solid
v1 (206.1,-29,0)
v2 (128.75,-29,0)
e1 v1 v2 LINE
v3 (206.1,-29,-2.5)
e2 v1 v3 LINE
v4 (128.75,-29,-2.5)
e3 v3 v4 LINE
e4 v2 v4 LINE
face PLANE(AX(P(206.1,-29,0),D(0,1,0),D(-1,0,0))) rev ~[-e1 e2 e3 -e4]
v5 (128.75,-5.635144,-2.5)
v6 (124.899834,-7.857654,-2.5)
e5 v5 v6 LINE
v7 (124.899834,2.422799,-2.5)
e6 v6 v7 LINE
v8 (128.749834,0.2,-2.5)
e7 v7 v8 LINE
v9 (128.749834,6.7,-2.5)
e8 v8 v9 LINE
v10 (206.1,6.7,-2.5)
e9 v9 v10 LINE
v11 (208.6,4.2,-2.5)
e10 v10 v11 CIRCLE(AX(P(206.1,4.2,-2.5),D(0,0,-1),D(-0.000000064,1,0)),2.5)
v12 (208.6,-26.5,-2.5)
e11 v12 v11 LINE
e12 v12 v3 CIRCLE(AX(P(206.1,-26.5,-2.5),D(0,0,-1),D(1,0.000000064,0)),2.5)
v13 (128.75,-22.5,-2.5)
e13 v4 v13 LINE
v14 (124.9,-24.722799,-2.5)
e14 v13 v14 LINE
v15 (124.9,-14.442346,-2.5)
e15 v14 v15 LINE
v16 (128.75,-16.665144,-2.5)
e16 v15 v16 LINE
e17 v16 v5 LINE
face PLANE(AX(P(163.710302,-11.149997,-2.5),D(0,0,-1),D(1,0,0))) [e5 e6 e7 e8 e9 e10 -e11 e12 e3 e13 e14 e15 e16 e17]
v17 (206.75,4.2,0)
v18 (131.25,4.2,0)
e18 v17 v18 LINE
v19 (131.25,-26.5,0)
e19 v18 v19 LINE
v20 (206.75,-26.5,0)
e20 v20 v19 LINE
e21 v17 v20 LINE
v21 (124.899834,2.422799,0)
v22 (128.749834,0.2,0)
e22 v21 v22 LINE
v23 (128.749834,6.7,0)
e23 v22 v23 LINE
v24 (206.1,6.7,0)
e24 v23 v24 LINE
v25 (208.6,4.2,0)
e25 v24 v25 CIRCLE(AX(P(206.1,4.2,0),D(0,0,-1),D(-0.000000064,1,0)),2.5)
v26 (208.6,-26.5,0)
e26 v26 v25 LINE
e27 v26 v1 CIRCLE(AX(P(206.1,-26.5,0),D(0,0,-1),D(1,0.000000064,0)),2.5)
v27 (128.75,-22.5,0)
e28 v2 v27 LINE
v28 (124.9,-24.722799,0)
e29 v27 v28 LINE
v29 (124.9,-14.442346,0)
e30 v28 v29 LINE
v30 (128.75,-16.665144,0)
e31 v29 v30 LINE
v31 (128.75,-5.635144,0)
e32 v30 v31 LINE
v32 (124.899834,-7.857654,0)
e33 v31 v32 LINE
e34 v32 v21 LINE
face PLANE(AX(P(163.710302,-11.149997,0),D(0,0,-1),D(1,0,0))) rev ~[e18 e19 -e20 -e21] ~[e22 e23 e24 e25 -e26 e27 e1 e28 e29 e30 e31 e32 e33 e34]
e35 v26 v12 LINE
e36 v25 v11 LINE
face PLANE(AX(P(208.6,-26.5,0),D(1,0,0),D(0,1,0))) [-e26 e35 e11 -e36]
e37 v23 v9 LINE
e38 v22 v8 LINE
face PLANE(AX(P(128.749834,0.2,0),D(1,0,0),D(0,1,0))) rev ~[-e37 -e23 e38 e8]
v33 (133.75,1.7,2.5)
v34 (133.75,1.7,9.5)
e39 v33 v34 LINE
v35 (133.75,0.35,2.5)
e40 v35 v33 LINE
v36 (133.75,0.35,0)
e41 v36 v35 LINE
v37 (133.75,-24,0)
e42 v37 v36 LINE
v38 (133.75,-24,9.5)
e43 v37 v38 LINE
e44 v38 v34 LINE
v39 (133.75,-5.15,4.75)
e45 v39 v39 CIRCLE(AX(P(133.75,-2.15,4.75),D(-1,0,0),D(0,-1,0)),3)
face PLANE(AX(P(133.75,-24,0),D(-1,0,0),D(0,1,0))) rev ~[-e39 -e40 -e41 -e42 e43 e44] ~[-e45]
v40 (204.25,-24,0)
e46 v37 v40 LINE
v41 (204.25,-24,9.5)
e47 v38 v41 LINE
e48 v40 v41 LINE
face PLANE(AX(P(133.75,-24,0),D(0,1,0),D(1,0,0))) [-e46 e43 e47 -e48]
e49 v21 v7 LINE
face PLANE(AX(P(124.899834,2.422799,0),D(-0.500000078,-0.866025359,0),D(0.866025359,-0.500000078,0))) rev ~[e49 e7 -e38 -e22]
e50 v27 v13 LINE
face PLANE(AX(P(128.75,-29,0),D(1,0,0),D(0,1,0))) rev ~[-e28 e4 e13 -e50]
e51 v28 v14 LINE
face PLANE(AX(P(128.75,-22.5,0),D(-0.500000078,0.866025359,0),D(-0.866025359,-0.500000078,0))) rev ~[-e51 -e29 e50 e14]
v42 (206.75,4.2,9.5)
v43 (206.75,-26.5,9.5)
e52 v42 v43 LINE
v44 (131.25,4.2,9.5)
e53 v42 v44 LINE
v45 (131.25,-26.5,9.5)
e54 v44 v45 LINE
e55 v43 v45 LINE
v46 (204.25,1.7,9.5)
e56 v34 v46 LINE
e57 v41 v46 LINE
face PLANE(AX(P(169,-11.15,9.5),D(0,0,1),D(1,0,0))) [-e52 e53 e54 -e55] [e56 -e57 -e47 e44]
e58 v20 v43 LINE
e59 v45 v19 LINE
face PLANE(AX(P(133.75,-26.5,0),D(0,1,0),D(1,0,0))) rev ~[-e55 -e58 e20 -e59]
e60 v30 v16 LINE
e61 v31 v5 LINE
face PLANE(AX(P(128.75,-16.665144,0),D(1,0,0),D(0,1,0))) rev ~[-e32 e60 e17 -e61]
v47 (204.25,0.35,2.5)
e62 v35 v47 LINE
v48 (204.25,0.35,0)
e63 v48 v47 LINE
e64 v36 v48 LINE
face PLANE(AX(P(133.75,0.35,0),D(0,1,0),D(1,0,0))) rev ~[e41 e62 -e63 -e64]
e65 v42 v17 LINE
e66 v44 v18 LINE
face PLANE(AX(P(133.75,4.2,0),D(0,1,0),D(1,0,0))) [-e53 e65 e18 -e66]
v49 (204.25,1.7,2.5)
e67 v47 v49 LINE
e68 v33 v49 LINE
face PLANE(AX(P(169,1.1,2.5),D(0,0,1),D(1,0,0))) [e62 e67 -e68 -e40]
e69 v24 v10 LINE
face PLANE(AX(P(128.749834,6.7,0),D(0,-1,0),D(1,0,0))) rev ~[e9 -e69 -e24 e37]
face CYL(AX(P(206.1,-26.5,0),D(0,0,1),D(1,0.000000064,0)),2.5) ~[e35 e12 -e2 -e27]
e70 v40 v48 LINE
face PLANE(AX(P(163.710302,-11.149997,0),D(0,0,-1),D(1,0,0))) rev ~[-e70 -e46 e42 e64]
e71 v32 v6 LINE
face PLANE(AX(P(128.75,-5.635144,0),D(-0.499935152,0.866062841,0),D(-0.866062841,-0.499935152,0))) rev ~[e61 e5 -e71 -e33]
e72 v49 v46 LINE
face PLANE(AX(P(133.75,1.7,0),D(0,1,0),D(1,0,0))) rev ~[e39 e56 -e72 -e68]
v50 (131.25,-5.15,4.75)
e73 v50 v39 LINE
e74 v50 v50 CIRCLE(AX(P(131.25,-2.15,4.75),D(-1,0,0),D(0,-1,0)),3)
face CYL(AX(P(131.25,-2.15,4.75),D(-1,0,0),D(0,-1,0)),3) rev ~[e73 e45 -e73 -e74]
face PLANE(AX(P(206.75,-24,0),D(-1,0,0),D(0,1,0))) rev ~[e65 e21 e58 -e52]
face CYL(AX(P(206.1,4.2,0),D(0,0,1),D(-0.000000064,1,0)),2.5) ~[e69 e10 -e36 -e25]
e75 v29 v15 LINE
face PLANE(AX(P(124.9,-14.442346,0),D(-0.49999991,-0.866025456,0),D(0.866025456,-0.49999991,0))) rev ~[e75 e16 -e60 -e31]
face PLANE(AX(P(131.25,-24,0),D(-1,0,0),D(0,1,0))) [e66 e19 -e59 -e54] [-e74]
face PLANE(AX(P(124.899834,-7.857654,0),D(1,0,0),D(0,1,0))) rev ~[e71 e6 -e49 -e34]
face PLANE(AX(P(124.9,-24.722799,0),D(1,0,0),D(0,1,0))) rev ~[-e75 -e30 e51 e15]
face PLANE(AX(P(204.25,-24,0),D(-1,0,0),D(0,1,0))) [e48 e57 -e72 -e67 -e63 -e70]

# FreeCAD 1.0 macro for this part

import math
import FreeCAD as App
import Part
import Sketcher
Q = App.Units.Quantity


def faces_at(feature, points):
    """Names of the faces that lie closest to the given points."""
    faces = feature.Shape.Faces
    near = lambda p: min(range(len(faces)), key=lambda i: faces[i].distToShape(Part.Vertex(*p))[0])
    return sorted({f"Face{near(p) + 1}" for p in points})


def add_polygon(sketch, points):
    """Adds a closed chain of lines whose ends are joined by coincident constraints."""
    first, n = sketch.GeometryCount, len(points)
    for a, b in zip(points, points[1:] + points[:1]):
        sketch.addGeometry(Part.LineSegment(App.Vector(*a, 0), App.Vector(*b, 0)), False)
    for i in range(n):
        sketch.addConstraint(Sketcher.Constraint("Coincident", first + i, 2, first + (i + 1) % n, 1))

doc = App.newDocument("Part")
body = doc.addObject("PartDesign::Body", "Body")

# Sketch on XY plane
sketch1 = body.newObject("Sketcher::SketchObject", "Sketch")
sketch1.AttachmentSupport = (doc.getObject("XY_Plane"), [""])
sketch1.MapMode = "FlatFace"
add_polygon(sketch1, [(-35.25, -35.15), (-35.25, -60.85), (35.25, -60.85), (35.25, -35.15)])  # lines 0-3
sketch1.addConstraint([
    Sketcher.Constraint("Vertical", 0),
    Sketcher.Constraint("Horizontal", 1),
    Sketcher.Constraint("Vertical", 2),
    Sketcher.Constraint("Horizontal", 3),
    Sketcher.Constraint("DistanceX", 1, 1, 1, 2, Q("70.5 mm")),
    Sketcher.Constraint("DistanceY", 0, 2, 0, 1, Q("25.7 mm")),
    Sketcher.Constraint("DistanceX", 0, 2, -1, 1, Q("35.25 mm")),
    Sketcher.Constraint("DistanceY", 0, 2, -1, 1, Q("60.85 mm")),
])
pad1 = body.newObject("PartDesign::Pad", "Pad")
pad1.Profile = sketch1
pad1.Length = 9.5
doc.recompute()

thickness = body.newObject("PartDesign::Thickness", "Thickness")
thickness.Base = (pad1, faces_at(pad1, [(0, -48, 9.5), (0, -48, 0)]))
thickness.Value = 2.5
thickness.Reversed = False
thickness.Join = "Intersection"

# Sketch on YZ plane
sketch2 = body.newObject("Sketcher::SketchObject", "Sketch001")
sketch2.AttachmentSupport = (doc.getObject("YZ_Plane"), [""])
sketch2.MapMode = "FlatFace"
sketch2.AttachmentOffset = App.Placement(App.Vector(0, 0, -37.75), App.Rotation())
sketch2.addGeometry(Part.Circle(App.Vector(-39, 4.75, 0), App.Vector(0, 0, 1), 3), False)
sketch2.addConstraint([
    Sketcher.Constraint("Diameter", 0, Q("6 mm")),
    Sketcher.Constraint("DistanceX", 0, 3, -1, 1, Q("39 mm")),
    Sketcher.Constraint("DistanceY", -1, 1, 0, 3, Q("4.75 mm")),
])
pocket1 = body.newObject("PartDesign::Pocket", "Pocket")
pocket1.Profile = sketch2
pocket1.Length = 2.5
pocket1.Reversed = True

# Sketch on XY plane
sketch3 = body.newObject("Sketcher::SketchObject", "Sketch002")
sketch3.AttachmentSupport = (doc.getObject("XY_Plane"), [""])
sketch3.MapMode = "FlatFace"
add_polygon(sketch3, [(-35.25, -35), (-35.25, -36.5), (35.25, -36.5), (35.25, -35)])  # lines 0-3
sketch3.addConstraint([
    Sketcher.Constraint("Vertical", 0),
    Sketcher.Constraint("Horizontal", 1),
    Sketcher.Constraint("Vertical", 2),
    Sketcher.Constraint("Horizontal", 3),
    Sketcher.Constraint("DistanceX", 1, 1, 1, 2, Q("70.5 mm")),
    Sketcher.Constraint("DistanceY", 0, 2, 0, 1, Q("1.5 mm")),
    Sketcher.Constraint("DistanceY", 2, 2, -1, 1, Q("35 mm")),
    Sketcher.Constraint("DistanceX", 0, 2, -1, 1, Q("35.25 mm")),
])
pad2 = body.newObject("PartDesign::Pad", "Pad001")
pad2.Profile = sketch3
pad2.Length = 2.5
body2 = doc.addObject("PartDesign::Body", "Body001")
doc.recompute()

body.Placement = App.Placement(App.Vector(84.5, 36.85, 0), App.Rotation(App.Vector(0, 0, 1), 0))
boolean = body2.newObject("PartDesign::Boolean", "Boolean")
boolean.Type = "Fuse"
boolean.addObjects([body])
body3 = doc.addObject("PartDesign::Body", "Body002")

# Sketch on XY plane
sketch4 = body3.newObject("Sketcher::SketchObject", "Sketch003")
sketch4.AttachmentSupport = (doc.getObject("XY_Plane002"), [""])
sketch4.MapMode = "FlatFace"
sketch4.addGeometry([
    Part.LineSegment(App.Vector(-40.250166, -30.15, 0), App.Vector(37.1, -30.15, 0)),  # 0
    Part.ArcOfCircle(Part.Circle(App.Vector(37.1, -32.65, 0), App.Vector(0, 0, 1), 2.5), math.radians(-0.000004), math.radians(90.000004)),  # 1
    Part.LineSegment(App.Vector(39.6, -32.65, 0), App.Vector(39.6, -63.35, 0)),  # 2
    Part.ArcOfCircle(Part.Circle(App.Vector(37.1, -63.35, 0), App.Vector(0, 0, 1), 2.5), math.radians(-90.000004), math.radians(0.000004)),  # 3
    Part.LineSegment(App.Vector(37.1, -65.85, 0), App.Vector(-40.25, -65.85, 0)),  # 4
    Part.LineSegment(App.Vector(-40.25, -65.85, 0), App.Vector(-40.25, -59.35, 0)),  # 5
    Part.LineSegment(App.Vector(-40.25, -59.35, 0), App.Vector(-44.1, -61.572799, 0)),  # 6
    Part.LineSegment(App.Vector(-44.1, -61.572799, 0), App.Vector(-44.1, -51.292346, 0)),  # 7
    Part.LineSegment(App.Vector(-44.1, -51.292346, 0), App.Vector(-40.25, -53.515144, 0)),  # 8
    Part.LineSegment(App.Vector(-40.25, -53.515144, 0), App.Vector(-40.25, -42.485144, 0)),  # 9
    Part.LineSegment(App.Vector(-40.25, -42.485144, 0), App.Vector(-44.100166, -44.707654, 0)),  # 10
    Part.LineSegment(App.Vector(-44.100166, -44.707654, 0), App.Vector(-44.100166, -34.427201, 0)),  # 11
    Part.LineSegment(App.Vector(-44.100166, -34.427201, 0), App.Vector(-40.250166, -36.65, 0)),  # 12
    Part.LineSegment(App.Vector(-40.250166, -36.65, 0), App.Vector(-40.250166, -30.15, 0)),  # 13
], False)
sketch4.addConstraint([
    Sketcher.Constraint("Tangent", 0, 2, 1, 2),
    Sketcher.Constraint("Tangent", 1, 1, 2, 1),
    Sketcher.Constraint("Tangent", 2, 2, 3, 2),
    Sketcher.Constraint("Tangent", 3, 1, 4, 1),
    Sketcher.Constraint("Coincident", 4, 2, 5, 1),
    Sketcher.Constraint("Coincident", 5, 2, 6, 1),
    Sketcher.Constraint("Coincident", 6, 2, 7, 1),
    Sketcher.Constraint("Coincident", 7, 2, 8, 1),
    Sketcher.Constraint("Coincident", 8, 2, 9, 1),
    Sketcher.Constraint("Coincident", 9, 2, 10, 1),
    Sketcher.Constraint("Coincident", 10, 2, 11, 1),
    Sketcher.Constraint("Coincident", 11, 2, 12, 1),
    Sketcher.Constraint("Coincident", 12, 2, 13, 1),
    Sketcher.Constraint("Coincident", 13, 2, 0, 1),
    Sketcher.Constraint("Horizontal", 0),
    Sketcher.Constraint("Vertical", 2),
    Sketcher.Constraint("Horizontal", 4),
    Sketcher.Constraint("Vertical", 5),
    Sketcher.Constraint("Vertical", 7),
    Sketcher.Constraint("Vertical", 9),
    Sketcher.Constraint("Vertical", 11),
    Sketcher.Constraint("Vertical", 13),
    Sketcher.Constraint("Equal", 1, 3),
    Sketcher.Constraint("Parallel", 8, 12),
    Sketcher.Constraint("Vertical", 5, 2, 8, 2),
    Sketcher.Constraint("Equal", 7, 11),
    Sketcher.Constraint("Equal", 5, 13),
    Sketcher.Constraint("Equal", 6, 8),
    Sketcher.Constraint("Equal", 8, 10),
    Sketcher.Constraint("Equal", 10, 12),
    Sketcher.Constraint("Radius", 1, Q("2.5 mm")),
    Sketcher.Constraint("Angle", 6, Q("-149.999995 deg")),
    Sketcher.Constraint("DistanceY", 2, 2, 2, 1, Q("30.7 mm")),
    Sketcher.Constraint("DistanceY", 5, 1, 5, 2, Q("6.5 mm")),
    Sketcher.Constraint("DistanceX", 4, 2, 4, 1, Q("77.35 mm")),
    Sketcher.Constraint("DistanceY", 9, 1, 9, 2, Q("11.03 mm")),
    Sketcher.Constraint("DistanceX", -1, 1, 1, 3, Q("37.1 mm")),
    Sketcher.Constraint("DistanceX", 6, 2, -1, 1, Q("44.1 mm")),
    Sketcher.Constraint("DistanceY", 1, 3, -1, 1, Q("32.65 mm")),
    Sketcher.Constraint("DistanceX", 0, 1, 0, 2, Q("77.350166 mm")),
])
pad3 = body3.newObject("PartDesign::Pad", "Pad002")
pad3.Profile = sketch4
pad3.Length = 2.5
pad3.Reversed = True
body4 = doc.addObject("PartDesign::Body", "Body003")
doc.recompute()

body3.Placement = App.Placement(App.Vector(84.5, 36.85, 0), App.Rotation(App.Vector(0, 0, 1), 0))
boolean2 = body4.newObject("PartDesign::Boolean", "Boolean001")
boolean2.Type = "Fuse"
boolean2.addObjects([body3])
doc.recompute()

boolean3 = body4.newObject("PartDesign::Boolean", "Boolean002")
boolean3.Type = "Fuse"
boolean3.addObjects([body2])
body5 = doc.addObject("PartDesign::Body", "Body004")
doc.recompute()

body4.Placement = App.Placement(App.Vector(84.5, 0, 0), App.Rotation(App.Vector(0, 0, 1), 0))
boolean4 = body5.newObject("PartDesign::Boolean", "Boolean003")
boolean4.Type = "Fuse"
boolean4.addObjects([body4])

doc.recompute()
